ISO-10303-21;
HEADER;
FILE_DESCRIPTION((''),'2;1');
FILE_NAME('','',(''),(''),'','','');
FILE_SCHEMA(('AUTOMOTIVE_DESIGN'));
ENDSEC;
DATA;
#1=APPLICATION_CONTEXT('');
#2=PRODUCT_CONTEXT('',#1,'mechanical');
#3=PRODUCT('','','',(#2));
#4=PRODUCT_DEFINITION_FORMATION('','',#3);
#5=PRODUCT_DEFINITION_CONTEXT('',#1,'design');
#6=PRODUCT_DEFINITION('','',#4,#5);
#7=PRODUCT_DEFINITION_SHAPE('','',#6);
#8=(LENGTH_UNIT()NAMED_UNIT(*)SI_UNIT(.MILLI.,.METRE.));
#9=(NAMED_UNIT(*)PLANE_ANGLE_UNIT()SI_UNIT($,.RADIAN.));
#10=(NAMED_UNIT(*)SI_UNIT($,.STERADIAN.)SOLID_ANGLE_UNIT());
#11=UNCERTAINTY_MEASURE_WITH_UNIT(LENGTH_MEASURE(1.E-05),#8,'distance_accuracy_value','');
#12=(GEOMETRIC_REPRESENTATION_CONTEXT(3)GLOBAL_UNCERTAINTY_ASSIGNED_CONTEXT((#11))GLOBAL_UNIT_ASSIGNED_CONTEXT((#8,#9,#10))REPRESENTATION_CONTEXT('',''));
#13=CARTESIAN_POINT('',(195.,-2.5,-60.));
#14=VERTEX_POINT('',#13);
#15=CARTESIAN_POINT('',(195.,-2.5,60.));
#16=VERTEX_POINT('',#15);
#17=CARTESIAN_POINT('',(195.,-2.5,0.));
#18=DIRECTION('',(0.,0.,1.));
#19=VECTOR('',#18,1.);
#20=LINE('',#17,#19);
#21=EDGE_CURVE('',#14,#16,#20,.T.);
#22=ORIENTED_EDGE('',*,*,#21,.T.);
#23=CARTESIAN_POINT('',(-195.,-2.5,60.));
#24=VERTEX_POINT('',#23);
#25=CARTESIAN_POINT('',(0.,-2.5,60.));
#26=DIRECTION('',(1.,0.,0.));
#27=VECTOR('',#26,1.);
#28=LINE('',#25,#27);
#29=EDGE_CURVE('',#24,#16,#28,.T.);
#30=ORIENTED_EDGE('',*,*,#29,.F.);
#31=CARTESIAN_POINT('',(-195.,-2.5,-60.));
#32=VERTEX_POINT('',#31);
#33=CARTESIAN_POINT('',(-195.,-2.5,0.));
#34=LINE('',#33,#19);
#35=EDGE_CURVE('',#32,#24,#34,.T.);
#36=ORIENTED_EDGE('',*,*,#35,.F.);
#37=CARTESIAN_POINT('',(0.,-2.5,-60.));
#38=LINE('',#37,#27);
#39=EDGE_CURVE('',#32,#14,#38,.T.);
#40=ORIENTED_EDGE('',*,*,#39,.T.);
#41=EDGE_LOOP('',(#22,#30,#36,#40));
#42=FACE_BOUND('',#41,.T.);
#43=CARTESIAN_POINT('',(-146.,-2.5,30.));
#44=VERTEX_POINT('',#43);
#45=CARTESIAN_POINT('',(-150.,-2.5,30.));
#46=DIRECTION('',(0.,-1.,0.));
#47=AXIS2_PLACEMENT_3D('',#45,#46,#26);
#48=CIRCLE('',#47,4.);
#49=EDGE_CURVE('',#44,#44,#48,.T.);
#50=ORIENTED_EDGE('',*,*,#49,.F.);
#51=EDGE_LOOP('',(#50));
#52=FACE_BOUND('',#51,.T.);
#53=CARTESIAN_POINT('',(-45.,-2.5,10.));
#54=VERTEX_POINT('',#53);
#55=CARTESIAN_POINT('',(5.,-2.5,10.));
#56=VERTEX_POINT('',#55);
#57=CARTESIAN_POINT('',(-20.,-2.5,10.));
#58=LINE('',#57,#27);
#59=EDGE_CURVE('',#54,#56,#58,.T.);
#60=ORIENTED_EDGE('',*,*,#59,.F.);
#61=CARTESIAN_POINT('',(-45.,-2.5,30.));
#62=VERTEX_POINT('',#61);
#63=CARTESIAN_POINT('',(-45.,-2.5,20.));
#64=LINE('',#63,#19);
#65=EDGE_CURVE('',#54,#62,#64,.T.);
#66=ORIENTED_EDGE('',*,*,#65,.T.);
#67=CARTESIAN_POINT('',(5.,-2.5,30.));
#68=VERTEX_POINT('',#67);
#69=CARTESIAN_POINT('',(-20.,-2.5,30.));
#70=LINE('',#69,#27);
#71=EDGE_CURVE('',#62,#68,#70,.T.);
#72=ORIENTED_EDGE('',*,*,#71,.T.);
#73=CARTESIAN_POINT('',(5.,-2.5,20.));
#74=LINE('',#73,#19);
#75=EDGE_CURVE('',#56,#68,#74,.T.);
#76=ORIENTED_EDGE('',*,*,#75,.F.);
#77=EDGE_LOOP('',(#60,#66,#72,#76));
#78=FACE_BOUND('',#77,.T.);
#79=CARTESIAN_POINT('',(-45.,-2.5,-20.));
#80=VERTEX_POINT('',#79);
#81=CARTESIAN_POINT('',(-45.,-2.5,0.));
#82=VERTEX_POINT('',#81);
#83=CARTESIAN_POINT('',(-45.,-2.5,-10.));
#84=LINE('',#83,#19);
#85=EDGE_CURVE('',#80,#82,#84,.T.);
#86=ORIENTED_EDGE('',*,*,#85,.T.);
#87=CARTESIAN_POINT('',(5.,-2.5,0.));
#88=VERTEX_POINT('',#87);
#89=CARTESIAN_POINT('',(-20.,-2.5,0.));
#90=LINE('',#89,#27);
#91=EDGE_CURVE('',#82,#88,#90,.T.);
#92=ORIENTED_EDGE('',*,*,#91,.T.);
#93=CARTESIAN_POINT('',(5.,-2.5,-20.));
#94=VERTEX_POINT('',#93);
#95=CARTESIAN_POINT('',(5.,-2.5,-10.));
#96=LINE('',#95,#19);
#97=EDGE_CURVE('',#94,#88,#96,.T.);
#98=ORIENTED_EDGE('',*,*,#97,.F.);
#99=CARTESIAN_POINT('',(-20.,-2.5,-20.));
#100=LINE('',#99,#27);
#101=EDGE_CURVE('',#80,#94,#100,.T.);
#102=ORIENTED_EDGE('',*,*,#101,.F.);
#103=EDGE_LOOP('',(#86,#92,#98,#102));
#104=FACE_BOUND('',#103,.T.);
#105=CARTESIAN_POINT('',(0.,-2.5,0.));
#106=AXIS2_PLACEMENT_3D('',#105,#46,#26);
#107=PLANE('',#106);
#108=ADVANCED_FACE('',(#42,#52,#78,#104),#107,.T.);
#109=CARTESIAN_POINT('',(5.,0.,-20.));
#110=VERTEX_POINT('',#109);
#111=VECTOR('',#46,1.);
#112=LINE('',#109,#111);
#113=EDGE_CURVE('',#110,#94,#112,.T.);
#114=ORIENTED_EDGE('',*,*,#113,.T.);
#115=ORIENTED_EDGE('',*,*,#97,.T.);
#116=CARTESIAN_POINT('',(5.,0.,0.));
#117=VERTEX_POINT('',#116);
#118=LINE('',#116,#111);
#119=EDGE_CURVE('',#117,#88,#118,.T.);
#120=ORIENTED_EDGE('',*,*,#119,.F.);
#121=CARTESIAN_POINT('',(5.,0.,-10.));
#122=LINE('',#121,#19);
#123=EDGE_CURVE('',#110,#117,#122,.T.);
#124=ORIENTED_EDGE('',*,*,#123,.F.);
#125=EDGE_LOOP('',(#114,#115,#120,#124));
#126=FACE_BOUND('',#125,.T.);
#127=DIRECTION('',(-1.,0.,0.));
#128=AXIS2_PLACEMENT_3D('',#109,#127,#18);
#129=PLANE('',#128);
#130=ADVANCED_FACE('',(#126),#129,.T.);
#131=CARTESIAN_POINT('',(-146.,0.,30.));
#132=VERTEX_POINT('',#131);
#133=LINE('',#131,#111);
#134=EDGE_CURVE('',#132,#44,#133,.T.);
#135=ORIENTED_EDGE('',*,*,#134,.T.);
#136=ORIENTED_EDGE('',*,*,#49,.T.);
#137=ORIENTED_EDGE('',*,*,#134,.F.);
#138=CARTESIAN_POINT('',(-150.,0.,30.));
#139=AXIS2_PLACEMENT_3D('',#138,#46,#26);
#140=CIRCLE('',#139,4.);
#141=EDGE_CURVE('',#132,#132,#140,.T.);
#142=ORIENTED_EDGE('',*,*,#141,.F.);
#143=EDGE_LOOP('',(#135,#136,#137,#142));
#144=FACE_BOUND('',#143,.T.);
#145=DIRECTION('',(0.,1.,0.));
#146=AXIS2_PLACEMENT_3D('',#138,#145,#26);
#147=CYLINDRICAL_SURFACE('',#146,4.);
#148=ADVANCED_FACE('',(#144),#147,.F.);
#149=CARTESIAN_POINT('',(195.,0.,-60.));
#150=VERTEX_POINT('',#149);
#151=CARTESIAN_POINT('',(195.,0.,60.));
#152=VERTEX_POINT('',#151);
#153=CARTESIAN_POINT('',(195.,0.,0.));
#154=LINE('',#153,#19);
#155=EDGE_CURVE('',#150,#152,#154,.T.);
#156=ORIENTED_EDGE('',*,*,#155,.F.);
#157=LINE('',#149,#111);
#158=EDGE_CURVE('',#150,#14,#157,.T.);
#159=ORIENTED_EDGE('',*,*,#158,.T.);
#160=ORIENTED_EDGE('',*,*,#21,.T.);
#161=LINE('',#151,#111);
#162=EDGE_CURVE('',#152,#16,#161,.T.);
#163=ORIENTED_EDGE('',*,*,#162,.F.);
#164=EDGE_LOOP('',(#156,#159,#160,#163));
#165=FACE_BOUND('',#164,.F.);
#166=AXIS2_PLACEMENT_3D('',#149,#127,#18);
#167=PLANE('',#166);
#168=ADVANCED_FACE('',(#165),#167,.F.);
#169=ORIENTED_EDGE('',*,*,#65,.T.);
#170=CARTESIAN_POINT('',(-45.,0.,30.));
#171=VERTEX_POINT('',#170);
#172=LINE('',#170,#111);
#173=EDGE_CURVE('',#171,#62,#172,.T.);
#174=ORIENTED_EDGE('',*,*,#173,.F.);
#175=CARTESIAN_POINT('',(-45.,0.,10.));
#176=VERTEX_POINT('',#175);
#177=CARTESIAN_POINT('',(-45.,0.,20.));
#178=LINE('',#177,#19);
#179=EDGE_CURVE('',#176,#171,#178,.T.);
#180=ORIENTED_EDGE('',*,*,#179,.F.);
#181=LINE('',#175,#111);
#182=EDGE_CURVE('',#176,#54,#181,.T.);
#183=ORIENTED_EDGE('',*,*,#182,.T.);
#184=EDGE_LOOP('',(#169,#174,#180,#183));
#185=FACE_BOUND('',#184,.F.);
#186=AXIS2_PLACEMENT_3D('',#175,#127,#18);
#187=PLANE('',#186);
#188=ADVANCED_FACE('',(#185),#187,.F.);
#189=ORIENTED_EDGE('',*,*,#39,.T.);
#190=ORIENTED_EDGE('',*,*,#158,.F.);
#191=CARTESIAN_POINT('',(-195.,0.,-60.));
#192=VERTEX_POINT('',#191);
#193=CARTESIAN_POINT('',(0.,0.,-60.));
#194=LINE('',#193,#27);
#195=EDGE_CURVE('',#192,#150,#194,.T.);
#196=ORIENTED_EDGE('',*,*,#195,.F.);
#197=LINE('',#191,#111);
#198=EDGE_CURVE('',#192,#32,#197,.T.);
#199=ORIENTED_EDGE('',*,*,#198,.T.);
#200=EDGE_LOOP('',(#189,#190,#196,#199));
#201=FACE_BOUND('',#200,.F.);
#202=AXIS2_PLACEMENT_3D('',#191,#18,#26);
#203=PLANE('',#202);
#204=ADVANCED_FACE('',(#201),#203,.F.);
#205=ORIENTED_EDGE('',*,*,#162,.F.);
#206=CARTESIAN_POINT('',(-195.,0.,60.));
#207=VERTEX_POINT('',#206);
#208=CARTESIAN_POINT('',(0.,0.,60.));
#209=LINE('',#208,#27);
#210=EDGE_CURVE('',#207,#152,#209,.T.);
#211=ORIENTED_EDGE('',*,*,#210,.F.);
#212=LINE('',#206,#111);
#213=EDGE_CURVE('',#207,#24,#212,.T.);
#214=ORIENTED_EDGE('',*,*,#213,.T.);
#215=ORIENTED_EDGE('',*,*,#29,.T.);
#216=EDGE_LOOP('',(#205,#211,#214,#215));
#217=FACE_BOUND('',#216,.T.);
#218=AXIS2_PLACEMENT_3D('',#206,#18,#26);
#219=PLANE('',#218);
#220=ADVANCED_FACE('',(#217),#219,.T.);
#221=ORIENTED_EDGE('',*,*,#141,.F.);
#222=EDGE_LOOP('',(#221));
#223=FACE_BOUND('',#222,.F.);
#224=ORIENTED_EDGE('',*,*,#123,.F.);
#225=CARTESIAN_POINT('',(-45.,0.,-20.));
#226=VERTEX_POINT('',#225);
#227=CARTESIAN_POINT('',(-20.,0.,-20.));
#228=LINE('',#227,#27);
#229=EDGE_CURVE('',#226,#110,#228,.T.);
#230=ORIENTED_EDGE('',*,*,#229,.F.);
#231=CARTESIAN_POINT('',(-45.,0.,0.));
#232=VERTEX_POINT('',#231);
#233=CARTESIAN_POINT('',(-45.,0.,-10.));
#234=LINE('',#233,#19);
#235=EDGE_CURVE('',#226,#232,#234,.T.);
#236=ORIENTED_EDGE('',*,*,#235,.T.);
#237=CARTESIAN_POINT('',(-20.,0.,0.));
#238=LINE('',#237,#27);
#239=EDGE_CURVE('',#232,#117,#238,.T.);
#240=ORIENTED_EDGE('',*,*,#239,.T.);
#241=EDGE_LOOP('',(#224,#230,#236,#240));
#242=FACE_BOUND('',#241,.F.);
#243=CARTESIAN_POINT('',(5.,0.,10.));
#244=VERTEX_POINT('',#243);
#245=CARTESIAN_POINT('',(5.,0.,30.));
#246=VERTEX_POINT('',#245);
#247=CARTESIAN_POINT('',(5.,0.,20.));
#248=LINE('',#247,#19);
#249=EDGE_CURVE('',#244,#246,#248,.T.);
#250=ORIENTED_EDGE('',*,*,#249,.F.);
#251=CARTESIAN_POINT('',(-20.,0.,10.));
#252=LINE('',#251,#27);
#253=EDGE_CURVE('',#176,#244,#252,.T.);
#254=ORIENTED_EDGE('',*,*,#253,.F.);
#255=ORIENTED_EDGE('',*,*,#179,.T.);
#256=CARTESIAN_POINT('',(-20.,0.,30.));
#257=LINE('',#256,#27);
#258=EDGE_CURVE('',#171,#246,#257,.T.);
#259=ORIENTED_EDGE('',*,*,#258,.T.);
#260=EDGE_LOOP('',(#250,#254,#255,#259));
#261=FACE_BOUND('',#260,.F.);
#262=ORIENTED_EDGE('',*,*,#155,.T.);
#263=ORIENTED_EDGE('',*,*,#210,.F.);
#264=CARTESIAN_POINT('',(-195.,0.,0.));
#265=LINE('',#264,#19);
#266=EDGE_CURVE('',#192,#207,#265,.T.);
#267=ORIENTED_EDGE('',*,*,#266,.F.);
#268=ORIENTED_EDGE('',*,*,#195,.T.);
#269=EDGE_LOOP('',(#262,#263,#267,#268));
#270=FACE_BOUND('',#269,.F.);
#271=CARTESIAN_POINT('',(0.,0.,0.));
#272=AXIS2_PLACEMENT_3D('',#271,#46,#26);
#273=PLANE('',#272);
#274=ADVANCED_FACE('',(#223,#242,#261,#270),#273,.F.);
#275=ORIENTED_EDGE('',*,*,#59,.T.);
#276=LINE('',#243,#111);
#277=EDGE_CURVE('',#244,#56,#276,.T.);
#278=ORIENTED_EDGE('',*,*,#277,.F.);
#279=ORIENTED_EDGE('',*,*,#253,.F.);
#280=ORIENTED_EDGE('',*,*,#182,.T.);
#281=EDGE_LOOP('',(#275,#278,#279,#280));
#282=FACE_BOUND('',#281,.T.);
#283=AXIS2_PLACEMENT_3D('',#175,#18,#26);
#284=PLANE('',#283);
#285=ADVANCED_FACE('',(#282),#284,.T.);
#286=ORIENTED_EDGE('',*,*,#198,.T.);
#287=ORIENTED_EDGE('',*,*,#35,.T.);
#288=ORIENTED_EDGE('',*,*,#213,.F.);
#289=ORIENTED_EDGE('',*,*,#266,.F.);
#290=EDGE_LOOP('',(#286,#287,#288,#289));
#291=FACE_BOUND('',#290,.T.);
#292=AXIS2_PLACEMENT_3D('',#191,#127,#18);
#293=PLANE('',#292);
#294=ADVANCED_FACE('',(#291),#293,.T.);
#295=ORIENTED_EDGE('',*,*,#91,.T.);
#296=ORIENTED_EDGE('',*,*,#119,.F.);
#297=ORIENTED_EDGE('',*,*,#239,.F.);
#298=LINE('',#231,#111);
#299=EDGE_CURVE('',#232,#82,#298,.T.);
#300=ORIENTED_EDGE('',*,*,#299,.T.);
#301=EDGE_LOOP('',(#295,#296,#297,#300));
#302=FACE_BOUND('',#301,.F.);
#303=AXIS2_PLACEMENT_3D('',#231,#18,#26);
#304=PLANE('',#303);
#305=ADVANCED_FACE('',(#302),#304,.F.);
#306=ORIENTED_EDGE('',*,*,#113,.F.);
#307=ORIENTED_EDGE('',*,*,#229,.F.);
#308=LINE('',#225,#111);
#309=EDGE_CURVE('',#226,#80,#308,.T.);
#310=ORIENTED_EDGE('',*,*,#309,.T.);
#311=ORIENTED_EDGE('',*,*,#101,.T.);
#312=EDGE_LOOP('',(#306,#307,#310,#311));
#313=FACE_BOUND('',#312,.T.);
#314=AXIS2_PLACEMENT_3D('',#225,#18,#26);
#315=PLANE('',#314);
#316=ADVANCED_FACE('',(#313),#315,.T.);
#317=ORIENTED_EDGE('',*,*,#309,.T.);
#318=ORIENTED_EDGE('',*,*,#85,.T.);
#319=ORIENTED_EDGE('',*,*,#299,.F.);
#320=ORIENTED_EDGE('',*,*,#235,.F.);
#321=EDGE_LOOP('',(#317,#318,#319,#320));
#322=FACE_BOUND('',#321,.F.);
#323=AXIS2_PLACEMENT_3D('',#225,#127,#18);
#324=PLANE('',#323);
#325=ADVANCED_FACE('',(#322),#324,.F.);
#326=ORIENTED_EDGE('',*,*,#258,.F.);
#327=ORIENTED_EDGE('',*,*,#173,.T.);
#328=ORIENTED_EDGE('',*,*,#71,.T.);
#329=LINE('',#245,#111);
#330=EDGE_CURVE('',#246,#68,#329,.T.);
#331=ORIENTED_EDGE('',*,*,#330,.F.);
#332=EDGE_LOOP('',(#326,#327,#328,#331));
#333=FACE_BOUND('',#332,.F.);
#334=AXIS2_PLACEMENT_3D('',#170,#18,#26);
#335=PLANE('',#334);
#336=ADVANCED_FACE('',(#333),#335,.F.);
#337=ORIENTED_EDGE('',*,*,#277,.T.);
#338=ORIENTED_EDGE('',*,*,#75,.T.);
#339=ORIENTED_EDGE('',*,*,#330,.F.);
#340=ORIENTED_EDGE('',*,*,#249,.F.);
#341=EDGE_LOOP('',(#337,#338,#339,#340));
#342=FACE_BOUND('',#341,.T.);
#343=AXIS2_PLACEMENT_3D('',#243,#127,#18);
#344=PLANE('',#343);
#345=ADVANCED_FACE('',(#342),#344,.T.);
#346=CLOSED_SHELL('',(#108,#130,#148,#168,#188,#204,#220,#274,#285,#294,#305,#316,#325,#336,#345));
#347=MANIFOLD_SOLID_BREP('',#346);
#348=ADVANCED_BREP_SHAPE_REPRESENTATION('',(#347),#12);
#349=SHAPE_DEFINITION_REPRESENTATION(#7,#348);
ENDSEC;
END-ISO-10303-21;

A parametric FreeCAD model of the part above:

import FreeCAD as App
import Part
import Sketcher

V = App.Vector
Q = App.Units.Quantity


def add_polygon(sketch, points):
    """Adds a closed chain of lines whose ends are joined by coincident constraints."""
    first, n = sketch.GeometryCount, len(points)
    for a, b in zip(points, points[1:] + points[:1]):
        sketch.addGeometry(Part.LineSegment(App.Vector(*a, 0), App.Vector(*b, 0)), False)
    for i in range(n):
        sketch.addConstraint(Sketcher.Constraint("Coincident", first + i, 2, first + (i + 1) % n, 1))

doc = App.newDocument("Part")
body = doc.addObject("PartDesign::Body", "Body")

# Sketch on XZ plane
sketch1 = doc.addObject("Sketcher::SketchObject", "Sketch")
body.addObject(sketch1)
sketch1.AttachmentSupport = (doc.XZ_Plane, [""])
sketch1.MapMode = "FlatFace"
add_polygon(sketch1, [(-195, 60), (-195, -60), (195, -60), (195, 60)])  # lines 0-3
add_polygon(sketch1, [(5, -20), (-45, -20), (-45, 0), (5, 0)])  # lines 4-7
sketch1.addGeometry(Part.Circle(V(-150, 30, 0), V(0, 0, 1), 4), False)  # 8
add_polygon(sketch1, [(5, 10), (-45, 10), (-45, 30), (5, 30)])  # lines 9-12
sketch1.addConstraint([
    Sketcher.Constraint("Vertical", 0),
    Sketcher.Constraint("Horizontal", 1),
    Sketcher.Constraint("Vertical", 2),
    Sketcher.Constraint("Horizontal", 3),
    Sketcher.Constraint("Horizontal", 4),
    Sketcher.Constraint("Vertical", 5),
    Sketcher.Constraint("Horizontal", 6),
    Sketcher.Constraint("Vertical", 7),
    Sketcher.Constraint("Horizontal", 9),
    Sketcher.Constraint("Vertical", 10),
    Sketcher.Constraint("Horizontal", 11),
    Sketcher.Constraint("Vertical", 12),
    Sketcher.Constraint("Symmetric", 0, 2, 2, 2, -1, 1),
    Sketcher.Constraint("PointOnObject", 5, 2, -1),
    Sketcher.Constraint("Horizontal", 8, 3, 10, 2),
    Sketcher.Constraint("Vertical", 5, 2, 9, 2),
    Sketcher.Constraint("Vertical", 7, 2, 11, 2),
    Sketcher.Constraint("Equal", 7, 10),
    Sketcher.Constraint("Diameter", 8, Q("8 mm")),
    Sketcher.Constraint("DistanceX", 1, 1, 1, 2, Q("390 mm")),
    Sketcher.Constraint("DistanceX", 4, 2, 4, 1, Q("50 mm")),
    Sketcher.Constraint("DistanceY", 0, 2, 0, 1, Q("120 mm")),
    Sketcher.Constraint("DistanceY", 5, 1, 5, 2, Q("20 mm")),
    Sketcher.Constraint("DistanceX", 8, 3, -1, 1, Q("150 mm")),
    Sketcher.Constraint("DistanceY", -1, 1, 8, 3, Q("30 mm")),
    Sketcher.Constraint("DistanceX", 4, 2, -1, 1, Q("45 mm")),
])
pad1 = doc.addObject("PartDesign::Pad", "Pad")
body.addObject(pad1)
pad1.Profile = sketch1
pad1.Length = 2.5

doc.recompute()
